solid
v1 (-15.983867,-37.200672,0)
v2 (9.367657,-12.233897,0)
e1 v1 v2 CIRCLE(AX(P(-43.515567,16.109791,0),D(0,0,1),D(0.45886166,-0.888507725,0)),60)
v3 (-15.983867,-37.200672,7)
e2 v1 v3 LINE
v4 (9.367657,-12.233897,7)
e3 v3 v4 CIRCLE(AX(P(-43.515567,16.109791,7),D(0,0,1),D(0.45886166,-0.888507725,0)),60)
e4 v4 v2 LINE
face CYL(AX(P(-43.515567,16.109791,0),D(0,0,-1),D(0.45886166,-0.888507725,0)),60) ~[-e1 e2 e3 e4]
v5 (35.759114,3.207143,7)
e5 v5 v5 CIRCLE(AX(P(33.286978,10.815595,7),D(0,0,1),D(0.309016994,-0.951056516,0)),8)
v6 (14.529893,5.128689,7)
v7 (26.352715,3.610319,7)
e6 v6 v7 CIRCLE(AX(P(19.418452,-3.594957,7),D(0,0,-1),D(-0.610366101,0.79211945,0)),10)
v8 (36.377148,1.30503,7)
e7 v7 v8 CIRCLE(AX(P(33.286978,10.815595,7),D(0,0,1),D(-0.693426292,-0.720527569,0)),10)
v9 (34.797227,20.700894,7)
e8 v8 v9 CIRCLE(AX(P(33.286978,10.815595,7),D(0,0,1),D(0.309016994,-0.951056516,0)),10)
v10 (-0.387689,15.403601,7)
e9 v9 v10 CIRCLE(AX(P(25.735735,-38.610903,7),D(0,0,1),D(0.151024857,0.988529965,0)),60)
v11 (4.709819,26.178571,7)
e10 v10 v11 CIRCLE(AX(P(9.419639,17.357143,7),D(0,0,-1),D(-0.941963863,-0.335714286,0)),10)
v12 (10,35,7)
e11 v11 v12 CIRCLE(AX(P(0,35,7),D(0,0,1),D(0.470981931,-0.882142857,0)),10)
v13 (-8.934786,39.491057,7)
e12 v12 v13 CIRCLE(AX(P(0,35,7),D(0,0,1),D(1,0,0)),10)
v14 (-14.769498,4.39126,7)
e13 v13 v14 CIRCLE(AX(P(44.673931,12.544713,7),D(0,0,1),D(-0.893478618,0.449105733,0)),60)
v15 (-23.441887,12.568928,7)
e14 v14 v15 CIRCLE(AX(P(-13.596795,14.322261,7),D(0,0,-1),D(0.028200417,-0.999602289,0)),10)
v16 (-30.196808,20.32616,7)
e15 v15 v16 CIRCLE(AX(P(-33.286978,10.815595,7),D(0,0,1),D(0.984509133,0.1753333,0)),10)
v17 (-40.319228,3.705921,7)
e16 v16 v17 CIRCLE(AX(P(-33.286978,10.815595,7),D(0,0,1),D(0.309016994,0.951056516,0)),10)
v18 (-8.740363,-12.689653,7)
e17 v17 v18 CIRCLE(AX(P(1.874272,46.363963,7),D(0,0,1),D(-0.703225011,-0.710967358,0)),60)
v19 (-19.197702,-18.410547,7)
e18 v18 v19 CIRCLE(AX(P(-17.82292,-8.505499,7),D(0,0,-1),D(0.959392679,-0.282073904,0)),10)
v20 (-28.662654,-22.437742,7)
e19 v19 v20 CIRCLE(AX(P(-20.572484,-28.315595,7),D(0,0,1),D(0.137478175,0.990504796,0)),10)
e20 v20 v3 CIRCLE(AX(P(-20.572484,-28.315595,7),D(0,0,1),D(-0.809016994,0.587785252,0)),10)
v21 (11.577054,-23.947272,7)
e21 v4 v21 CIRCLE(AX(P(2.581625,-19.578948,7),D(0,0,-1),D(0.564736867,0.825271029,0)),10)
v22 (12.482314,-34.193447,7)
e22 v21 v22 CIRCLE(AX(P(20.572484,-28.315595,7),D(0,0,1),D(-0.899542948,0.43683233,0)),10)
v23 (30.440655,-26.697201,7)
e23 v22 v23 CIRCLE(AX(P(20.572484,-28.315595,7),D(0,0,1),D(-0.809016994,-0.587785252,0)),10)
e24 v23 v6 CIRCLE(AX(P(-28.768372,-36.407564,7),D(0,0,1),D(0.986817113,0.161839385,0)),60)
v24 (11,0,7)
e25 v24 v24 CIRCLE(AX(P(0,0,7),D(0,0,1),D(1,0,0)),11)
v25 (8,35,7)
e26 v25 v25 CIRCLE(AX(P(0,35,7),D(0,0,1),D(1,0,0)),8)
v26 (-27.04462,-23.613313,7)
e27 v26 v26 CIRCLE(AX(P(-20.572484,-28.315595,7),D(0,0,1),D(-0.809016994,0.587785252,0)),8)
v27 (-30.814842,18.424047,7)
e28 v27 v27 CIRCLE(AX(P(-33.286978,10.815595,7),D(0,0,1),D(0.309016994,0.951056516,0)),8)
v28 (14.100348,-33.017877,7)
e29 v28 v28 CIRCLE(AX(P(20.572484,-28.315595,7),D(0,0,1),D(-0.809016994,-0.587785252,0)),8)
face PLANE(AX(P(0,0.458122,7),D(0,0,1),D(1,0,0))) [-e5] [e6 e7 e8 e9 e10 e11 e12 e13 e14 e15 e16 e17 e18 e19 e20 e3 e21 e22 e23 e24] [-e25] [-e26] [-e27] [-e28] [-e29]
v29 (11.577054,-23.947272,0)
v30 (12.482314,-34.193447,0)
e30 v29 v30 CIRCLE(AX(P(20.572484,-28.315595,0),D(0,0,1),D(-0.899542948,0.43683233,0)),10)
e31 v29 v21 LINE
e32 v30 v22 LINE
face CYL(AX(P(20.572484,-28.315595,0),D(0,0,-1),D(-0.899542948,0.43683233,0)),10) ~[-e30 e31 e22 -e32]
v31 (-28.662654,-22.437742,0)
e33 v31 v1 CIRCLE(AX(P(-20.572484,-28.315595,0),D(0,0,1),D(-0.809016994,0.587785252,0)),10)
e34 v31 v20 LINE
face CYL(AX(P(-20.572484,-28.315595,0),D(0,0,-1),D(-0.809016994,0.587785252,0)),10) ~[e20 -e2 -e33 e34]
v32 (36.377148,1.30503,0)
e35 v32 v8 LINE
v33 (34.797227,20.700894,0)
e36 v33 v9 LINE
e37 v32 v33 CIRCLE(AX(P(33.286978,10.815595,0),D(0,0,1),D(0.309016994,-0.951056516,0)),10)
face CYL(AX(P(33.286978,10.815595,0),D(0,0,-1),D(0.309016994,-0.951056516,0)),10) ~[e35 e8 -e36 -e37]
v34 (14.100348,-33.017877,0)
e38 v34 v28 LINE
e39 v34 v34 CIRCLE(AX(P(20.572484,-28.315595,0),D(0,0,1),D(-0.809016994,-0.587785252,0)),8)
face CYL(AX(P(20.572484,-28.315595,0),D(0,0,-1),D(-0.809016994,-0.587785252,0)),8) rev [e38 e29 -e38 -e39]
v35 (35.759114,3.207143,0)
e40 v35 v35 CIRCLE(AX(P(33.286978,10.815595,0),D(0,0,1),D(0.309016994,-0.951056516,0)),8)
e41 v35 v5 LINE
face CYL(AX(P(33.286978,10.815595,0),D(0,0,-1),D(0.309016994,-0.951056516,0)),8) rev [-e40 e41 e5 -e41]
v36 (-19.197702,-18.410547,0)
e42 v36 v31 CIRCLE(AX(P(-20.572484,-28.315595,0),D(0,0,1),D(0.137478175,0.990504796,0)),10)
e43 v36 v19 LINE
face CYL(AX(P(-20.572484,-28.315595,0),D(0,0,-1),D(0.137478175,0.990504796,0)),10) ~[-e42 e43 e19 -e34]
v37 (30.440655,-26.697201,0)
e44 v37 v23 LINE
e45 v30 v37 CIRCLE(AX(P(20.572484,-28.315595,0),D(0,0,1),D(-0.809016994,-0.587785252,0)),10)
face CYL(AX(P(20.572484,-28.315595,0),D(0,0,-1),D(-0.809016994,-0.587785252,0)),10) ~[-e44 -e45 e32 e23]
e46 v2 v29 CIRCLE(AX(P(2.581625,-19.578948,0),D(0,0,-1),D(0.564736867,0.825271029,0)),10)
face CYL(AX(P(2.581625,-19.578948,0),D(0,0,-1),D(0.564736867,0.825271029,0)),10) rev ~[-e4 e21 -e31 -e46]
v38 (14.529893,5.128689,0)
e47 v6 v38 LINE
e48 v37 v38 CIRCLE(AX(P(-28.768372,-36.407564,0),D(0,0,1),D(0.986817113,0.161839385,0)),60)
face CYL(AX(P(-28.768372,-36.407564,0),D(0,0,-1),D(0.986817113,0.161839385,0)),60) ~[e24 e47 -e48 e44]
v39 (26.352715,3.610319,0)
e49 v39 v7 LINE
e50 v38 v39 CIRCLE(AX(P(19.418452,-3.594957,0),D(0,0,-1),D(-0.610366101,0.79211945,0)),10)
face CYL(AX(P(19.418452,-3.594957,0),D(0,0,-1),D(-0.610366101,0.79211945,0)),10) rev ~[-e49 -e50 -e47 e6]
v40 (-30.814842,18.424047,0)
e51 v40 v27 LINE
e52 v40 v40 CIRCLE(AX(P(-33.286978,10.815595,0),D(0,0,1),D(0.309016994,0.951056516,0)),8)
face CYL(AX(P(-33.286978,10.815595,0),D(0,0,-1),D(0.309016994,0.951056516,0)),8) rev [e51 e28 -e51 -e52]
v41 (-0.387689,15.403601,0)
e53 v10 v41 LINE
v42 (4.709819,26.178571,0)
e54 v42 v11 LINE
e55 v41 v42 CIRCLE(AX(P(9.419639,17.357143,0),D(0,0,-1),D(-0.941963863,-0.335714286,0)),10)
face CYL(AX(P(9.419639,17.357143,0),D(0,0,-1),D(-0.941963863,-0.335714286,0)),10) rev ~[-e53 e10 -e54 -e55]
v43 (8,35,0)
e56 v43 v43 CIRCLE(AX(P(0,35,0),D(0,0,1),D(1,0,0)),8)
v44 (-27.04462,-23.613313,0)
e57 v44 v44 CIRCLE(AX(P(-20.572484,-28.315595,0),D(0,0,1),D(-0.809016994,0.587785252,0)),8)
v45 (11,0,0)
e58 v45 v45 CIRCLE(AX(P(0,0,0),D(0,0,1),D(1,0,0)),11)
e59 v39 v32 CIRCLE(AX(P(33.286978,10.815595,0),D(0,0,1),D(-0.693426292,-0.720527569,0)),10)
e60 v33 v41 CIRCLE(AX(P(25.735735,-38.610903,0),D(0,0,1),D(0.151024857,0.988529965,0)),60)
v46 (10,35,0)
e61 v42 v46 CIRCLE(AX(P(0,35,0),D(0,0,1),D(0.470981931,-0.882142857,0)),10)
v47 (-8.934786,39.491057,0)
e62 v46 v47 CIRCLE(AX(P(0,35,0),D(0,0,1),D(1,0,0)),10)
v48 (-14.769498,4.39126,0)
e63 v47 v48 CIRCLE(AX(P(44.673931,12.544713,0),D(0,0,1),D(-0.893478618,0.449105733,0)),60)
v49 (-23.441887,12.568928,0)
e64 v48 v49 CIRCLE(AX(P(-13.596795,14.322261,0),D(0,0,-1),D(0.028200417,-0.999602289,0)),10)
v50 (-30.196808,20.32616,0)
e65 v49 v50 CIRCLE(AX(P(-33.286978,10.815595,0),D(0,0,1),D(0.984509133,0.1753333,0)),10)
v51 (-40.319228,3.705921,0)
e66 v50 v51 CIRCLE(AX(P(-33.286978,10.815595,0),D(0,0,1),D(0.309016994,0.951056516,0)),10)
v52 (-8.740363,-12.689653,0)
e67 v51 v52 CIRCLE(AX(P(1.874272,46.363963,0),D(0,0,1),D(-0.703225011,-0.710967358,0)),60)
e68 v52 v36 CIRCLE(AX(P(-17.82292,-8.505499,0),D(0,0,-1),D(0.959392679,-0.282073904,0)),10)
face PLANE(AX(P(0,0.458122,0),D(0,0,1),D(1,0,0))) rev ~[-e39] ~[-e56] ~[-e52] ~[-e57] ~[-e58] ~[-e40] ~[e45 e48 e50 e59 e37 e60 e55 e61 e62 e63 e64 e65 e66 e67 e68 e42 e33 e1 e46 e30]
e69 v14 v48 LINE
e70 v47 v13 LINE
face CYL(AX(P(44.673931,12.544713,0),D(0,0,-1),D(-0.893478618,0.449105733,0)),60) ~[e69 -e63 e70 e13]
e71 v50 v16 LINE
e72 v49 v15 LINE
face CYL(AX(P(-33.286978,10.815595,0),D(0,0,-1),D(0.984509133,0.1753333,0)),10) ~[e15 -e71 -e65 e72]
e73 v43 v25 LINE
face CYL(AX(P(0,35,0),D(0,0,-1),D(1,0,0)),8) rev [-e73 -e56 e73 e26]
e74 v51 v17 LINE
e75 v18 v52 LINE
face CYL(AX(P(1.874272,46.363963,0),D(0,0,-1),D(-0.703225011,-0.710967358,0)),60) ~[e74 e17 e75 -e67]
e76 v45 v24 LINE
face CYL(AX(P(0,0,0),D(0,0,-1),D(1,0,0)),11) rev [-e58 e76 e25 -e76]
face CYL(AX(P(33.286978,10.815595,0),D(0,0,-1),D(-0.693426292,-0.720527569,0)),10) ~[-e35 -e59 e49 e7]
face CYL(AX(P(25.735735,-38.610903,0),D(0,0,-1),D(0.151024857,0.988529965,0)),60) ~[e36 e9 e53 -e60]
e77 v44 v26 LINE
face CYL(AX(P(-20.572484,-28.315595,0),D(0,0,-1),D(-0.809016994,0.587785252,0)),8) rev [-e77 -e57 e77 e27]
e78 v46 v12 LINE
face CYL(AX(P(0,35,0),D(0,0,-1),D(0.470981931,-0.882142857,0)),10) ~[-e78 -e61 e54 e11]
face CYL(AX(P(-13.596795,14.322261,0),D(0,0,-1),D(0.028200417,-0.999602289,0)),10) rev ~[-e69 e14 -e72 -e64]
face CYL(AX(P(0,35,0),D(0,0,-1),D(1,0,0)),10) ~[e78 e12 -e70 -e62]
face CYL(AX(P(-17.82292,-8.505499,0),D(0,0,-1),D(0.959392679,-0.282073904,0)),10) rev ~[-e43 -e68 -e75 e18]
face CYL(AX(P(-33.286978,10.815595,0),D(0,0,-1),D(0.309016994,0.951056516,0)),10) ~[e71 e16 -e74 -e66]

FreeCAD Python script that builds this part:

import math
import FreeCAD as App
import Part
import Sketcher

V = App.Vector
Q = App.Units.Quantity

doc = App.newDocument("Part")
body = doc.addObject("PartDesign::Body", "Body")

# Sketch on XY plane
sketch1 = body.newObject("Sketcher::SketchObject", "Sketch")
sketch1.AttachmentSupport = (doc.getObject("XY_Plane"), [""])
sketch1.MapMode = "FlatFace"
sketch1.addGeometry(Part.ArcOfCircle(Part.Circle(V(0, 0, 0), V(0, 0, 1), 14), math.radians(180), math.radians(360)), False)
sketch1.addGeometry(Part.ArcOfCircle(Part.Circle(V(0, 0, 0), V(0, 0, 1), 14), math.radians(0), math.radians(90)), False)
sketch1.addGeometry(Part.ArcOfCircle(Part.Circle(V(9.419639, 17.357143, 0), V(0, 0, 1), 10), math.radians(118.098055), math.radians(199.615979)), False)
sketch1.addGeometry(Part.ArcOfCircle(Part.Circle(V(0, 35, 0), V(0, 0, 1), 10), math.radians(-61.901945), math.radians(0)), False)
sketch1.addGeometry(Part.ArcOfCircle(Part.Circle(V(0, 35, 0), V(0, 0, 1), 10), math.radians(0), math.radians(153.313677)), False)
sketch1.addGeometry(Part.ArcOfCircle(Part.Circle(V(44.673931, 12.544713, 0), V(0, 0, 1), 60), math.radians(153.313677), math.radians(192.068359)), False)
sketch1.addGeometry(Part.Circle(V(0, 0, 0), V(0, 0, 1), 11), False)
sketch1.addGeometry(Part.Circle(V(0, 35, 0), V(0, 0, 1), 8), False)
sketch1.addConstraint(Sketcher.Constraint("Tangent", 0, 2, 1, 1))
sketch1.addConstraint(Sketcher.Constraint("Coincident", 1, 2, 2, 2))
sketch1.addConstraint(Sketcher.Constraint("Tangent", 2, 1, 3, 1))
sketch1.addConstraint(Sketcher.Constraint("Tangent", 3, 2, 4, 1))
sketch1.addConstraint(Sketcher.Constraint("Tangent", 4, 2, 5, 1))
sketch1.addConstraint(Sketcher.Constraint("Coincident", 5, 2, 0, 1))
sketch1.addConstraint(Sketcher.Constraint("Coincident", 0, 3, -1, 1))
sketch1.addConstraint(Sketcher.Constraint("Coincident", 6, 3, -1, 1))
sketch1.addConstraint(Sketcher.Constraint("Coincident", 7, 3, 3, 3))
sketch1.addConstraint(Sketcher.Constraint("Equal", 0, 1))
sketch1.addConstraint(Sketcher.Constraint("Equal", 2, 3))
sketch1.addConstraint(Sketcher.Constraint("Equal", 3, 4))
sketch1.addConstraint(Sketcher.Constraint("PointOnObject", 3, 3, -2))
sketch1.addConstraint(Sketcher.Constraint("PointOnObject", 0, 2, -1))
sketch1.addConstraint(Sketcher.Constraint("PointOnObject", 1, 2, -2))
sketch1.addConstraint(Sketcher.Constraint("PointOnObject", 5, 2, -1))
sketch1.addConstraint(Sketcher.Constraint("Horizontal", 7, 3, 3, 2))
sketch1.addConstraint(Sketcher.Constraint("Diameter", 6, Q("22 mm")))
sketch1.addConstraint(Sketcher.Constraint("Diameter", 7, Q("16 mm")))
sketch1.addConstraint(Sketcher.Constraint("Radius", 0, Q("14 mm")))
sketch1.addConstraint(Sketcher.Constraint("Radius", 2, Q("10 mm")))
sketch1.addConstraint(Sketcher.Constraint("Radius", 5, Q("60 mm")))
sketch1.addConstraint(Sketcher.Constraint("DistanceY", -1, 1, 3, 3, Q("35 mm")))
pad1 = body.newObject("PartDesign::Pad", "Pad")
pad1.Profile = sketch1
pad1.Length = 7
body2 = doc.addObject("PartDesign::Body", "Body001")
doc.recompute()

body2.BaseFeature = body
doc.recompute()

body3 = doc.addObject("PartDesign::Body", "Body002")
body3.BaseFeature = body
body3.Placement = App.Placement(V(0, 0, 0), App.Rotation(V(0, 0, 1), 72))
boolean = body2.newObject("PartDesign::Boolean", "Boolean")
boolean.Type = "Fuse"
boolean.addObjects([body3])
doc.recompute()

body4 = doc.addObject("PartDesign::Body", "Body003")
body4.BaseFeature = body
body4.Placement = App.Placement(V(0, 0, 0), App.Rotation(V(0, 0, 1), 144))
boolean2 = body2.newObject("PartDesign::Boolean", "Boolean001")
boolean2.Type = "Fuse"
boolean2.addObjects([body4])
doc.recompute()

body5 = doc.addObject("PartDesign::Body", "Body004")
body5.BaseFeature = body
body5.Placement = App.Placement(V(0, 0, 0), App.Rotation(V(0, 0, 1), 216))
boolean3 = body2.newObject("PartDesign::Boolean", "Boolean002")
boolean3.Type = "Fuse"
boolean3.addObjects([body5])
doc.recompute()

body.Placement = App.Placement(V(0, 0, 0), App.Rotation(V(0, 0, 1), 288))
boolean4 = body2.newObject("PartDesign::Boolean", "Boolean003")
boolean4.Type = "Fuse"
boolean4.addObjects([body])

doc.recompute()
